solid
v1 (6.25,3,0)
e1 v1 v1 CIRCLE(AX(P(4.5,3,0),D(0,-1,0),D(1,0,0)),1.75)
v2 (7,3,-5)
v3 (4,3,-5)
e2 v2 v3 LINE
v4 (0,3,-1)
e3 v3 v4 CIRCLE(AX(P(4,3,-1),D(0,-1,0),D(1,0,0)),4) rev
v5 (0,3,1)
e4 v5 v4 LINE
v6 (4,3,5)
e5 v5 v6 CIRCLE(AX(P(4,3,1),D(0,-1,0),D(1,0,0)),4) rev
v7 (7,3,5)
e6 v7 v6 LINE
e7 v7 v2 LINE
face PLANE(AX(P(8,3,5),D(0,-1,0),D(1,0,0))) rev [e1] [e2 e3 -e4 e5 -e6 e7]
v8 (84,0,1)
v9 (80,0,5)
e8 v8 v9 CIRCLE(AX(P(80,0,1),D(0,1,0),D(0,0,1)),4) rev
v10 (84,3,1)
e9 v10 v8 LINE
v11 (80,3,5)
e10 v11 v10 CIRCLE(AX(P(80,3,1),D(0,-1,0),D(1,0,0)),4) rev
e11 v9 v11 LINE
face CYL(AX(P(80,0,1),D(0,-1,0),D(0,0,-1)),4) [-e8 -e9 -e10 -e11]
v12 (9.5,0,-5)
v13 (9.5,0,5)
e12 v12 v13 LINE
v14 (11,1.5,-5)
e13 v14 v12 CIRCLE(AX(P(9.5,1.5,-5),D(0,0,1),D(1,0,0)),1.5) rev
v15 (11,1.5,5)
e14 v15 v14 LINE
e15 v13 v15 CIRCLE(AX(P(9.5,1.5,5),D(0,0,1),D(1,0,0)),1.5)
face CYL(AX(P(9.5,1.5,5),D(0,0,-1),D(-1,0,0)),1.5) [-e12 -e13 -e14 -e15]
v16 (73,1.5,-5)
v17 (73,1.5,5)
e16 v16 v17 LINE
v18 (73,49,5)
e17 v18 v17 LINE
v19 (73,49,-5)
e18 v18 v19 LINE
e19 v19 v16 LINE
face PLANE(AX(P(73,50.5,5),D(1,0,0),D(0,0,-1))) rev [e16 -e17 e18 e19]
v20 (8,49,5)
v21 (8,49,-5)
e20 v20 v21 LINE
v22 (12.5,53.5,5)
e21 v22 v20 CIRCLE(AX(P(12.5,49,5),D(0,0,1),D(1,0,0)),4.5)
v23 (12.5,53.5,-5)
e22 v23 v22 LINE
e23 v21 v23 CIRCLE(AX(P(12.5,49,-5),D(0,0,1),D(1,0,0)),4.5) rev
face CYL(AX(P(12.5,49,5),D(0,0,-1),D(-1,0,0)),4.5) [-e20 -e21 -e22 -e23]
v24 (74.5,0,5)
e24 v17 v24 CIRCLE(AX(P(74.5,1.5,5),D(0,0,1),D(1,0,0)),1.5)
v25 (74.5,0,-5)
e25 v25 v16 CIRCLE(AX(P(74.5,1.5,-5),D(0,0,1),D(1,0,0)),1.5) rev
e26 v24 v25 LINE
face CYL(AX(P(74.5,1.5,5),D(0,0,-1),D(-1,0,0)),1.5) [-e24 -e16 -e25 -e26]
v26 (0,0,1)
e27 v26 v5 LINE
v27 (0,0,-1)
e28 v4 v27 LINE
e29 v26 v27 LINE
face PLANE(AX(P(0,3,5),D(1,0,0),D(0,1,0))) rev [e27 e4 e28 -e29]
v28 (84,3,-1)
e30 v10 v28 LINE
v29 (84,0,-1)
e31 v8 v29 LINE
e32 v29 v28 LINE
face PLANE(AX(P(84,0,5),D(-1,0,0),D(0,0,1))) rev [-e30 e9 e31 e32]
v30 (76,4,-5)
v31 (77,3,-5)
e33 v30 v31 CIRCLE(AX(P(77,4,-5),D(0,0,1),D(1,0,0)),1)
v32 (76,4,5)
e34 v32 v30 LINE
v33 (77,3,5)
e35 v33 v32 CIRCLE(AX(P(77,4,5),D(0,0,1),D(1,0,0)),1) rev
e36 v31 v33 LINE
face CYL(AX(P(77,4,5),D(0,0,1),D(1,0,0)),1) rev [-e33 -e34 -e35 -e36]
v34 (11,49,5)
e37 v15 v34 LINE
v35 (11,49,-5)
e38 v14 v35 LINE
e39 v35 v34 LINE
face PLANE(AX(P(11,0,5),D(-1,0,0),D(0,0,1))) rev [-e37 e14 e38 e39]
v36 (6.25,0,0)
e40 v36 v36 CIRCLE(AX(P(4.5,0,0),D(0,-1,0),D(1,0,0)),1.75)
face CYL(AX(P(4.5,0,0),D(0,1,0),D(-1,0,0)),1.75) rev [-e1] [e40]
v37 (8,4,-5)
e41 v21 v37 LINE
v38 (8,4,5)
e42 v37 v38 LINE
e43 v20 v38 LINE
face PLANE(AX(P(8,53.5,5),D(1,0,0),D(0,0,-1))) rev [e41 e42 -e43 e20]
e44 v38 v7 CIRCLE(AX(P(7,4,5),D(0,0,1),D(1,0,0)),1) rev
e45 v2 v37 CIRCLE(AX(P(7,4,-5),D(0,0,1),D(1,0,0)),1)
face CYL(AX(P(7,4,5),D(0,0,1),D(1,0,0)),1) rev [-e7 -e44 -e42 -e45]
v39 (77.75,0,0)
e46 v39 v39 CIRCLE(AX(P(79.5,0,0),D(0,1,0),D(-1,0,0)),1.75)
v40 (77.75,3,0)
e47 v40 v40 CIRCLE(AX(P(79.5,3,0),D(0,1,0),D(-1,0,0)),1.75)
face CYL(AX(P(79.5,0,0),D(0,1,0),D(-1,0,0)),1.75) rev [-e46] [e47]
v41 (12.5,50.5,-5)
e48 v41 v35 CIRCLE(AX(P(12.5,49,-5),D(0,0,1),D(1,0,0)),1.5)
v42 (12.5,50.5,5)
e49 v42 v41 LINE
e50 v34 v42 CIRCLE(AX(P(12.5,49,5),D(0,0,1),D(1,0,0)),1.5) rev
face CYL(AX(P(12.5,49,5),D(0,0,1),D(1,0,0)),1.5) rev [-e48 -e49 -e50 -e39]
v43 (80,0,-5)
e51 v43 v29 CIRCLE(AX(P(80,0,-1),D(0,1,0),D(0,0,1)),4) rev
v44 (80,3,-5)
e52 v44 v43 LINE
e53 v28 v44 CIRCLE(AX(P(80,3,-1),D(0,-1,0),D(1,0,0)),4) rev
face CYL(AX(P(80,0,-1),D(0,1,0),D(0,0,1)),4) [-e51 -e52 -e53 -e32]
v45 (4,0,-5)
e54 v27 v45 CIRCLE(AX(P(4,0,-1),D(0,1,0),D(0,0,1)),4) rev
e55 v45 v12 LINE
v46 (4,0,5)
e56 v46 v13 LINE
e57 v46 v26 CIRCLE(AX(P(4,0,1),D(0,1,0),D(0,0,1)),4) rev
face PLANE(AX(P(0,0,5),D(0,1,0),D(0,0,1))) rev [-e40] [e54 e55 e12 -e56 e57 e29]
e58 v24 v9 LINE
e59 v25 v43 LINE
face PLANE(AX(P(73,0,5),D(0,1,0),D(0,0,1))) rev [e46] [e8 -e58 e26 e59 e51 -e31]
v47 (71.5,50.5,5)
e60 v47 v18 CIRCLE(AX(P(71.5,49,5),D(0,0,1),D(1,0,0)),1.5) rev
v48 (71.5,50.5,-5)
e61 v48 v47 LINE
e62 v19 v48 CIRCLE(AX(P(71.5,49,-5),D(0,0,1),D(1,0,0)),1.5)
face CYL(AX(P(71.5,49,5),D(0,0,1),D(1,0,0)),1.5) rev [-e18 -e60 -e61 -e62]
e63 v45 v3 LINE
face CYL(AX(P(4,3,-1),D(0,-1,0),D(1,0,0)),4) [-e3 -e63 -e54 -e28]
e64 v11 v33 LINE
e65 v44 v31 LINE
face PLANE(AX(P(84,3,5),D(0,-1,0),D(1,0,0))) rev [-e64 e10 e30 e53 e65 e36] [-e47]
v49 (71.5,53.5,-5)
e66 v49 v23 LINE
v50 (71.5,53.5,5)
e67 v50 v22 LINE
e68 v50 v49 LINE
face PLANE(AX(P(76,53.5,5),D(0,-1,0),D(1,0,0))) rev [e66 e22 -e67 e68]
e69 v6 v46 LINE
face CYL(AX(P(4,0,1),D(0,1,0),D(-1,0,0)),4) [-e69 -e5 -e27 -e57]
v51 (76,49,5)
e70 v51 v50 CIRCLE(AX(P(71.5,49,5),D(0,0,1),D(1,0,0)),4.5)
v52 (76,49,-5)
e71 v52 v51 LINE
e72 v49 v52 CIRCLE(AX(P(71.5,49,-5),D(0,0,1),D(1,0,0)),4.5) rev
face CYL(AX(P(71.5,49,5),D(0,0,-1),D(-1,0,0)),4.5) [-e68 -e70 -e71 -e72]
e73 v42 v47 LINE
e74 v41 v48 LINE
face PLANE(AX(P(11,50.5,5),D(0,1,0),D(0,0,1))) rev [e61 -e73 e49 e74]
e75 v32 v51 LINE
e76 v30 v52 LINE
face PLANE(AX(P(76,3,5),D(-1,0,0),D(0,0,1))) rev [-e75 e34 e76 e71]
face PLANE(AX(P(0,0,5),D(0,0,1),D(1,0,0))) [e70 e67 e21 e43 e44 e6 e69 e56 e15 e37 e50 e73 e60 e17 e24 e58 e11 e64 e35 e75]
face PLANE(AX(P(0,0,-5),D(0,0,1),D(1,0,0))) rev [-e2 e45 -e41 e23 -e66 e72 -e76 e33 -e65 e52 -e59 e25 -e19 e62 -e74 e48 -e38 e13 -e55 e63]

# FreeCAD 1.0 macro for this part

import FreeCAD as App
import Part
import Sketcher

V = App.Vector
Q = App.Units.Quantity


def edges_at(feature, points):
    """Names of the edges that pass closest to the given points."""
    edges = feature.Shape.Edges
    near = lambda p: min(range(len(edges)), key=lambda i: edges[i].distToShape(Part.Vertex(*p))[0])
    return sorted({f"Edge{near(p) + 1}" for p in points})

doc = App.newDocument("Part")
body = doc.addObject("PartDesign::Body", "Body")

# Sketch on XY plane
sketch1 = doc.addObject("Sketcher::SketchObject", "Sketch")
body.addObject(sketch1)
sketch1.AttachmentSupport = (doc.XY_Plane, [""])
sketch1.MapMode = "FlatFace"
sketch1.addGeometry(Part.LineSegment(V(0, 0, 0), V(11, 0, 0)), False)
sketch1.addGeometry(Part.LineSegment(V(11, 0, 0), V(11, 50.5, 0)), False)
sketch1.addGeometry(Part.LineSegment(V(11, 50.5, 0), V(73, 50.5, 0)), False)
sketch1.addGeometry(Part.LineSegment(V(73, 50.5, 0), V(73, 0, 0)), False)
sketch1.addGeometry(Part.LineSegment(V(73, 0, 0), V(84, 0, 0)), False)
sketch1.addGeometry(Part.LineSegment(V(84, 0, 0), V(84, 3, 0)), False)
sketch1.addGeometry(Part.LineSegment(V(84, 3, 0), V(76, 3, 0)), False)
sketch1.addGeometry(Part.LineSegment(V(76, 3, 0), V(76, 53.5, 0)), False)
sketch1.addGeometry(Part.LineSegment(V(76, 53.5, 0), V(8, 53.5, 0)), False)
sketch1.addGeometry(Part.LineSegment(V(8, 53.5, 0), V(8, 3, 0)), False)
sketch1.addGeometry(Part.LineSegment(V(8, 3, 0), V(0, 3, 0)), False)
sketch1.addGeometry(Part.LineSegment(V(0, 3, 0), V(0, 0, 0)), False)
sketch1.addConstraint(Sketcher.Constraint("Coincident", 0, 2, 1, 1))
sketch1.addConstraint(Sketcher.Constraint("Coincident", 1, 2, 2, 1))
sketch1.addConstraint(Sketcher.Constraint("Coincident", 2, 2, 3, 1))
sketch1.addConstraint(Sketcher.Constraint("Coincident", 3, 2, 4, 1))
sketch1.addConstraint(Sketcher.Constraint("Coincident", 4, 2, 5, 1))
sketch1.addConstraint(Sketcher.Constraint("Coincident", 5, 2, 6, 1))
sketch1.addConstraint(Sketcher.Constraint("Coincident", 6, 2, 7, 1))
sketch1.addConstraint(Sketcher.Constraint("Coincident", 7, 2, 8, 1))
sketch1.addConstraint(Sketcher.Constraint("Coincident", 8, 2, 9, 1))
sketch1.addConstraint(Sketcher.Constraint("Coincident", 9, 2, 10, 1))
sketch1.addConstraint(Sketcher.Constraint("Coincident", 10, 2, 11, 1))
sketch1.addConstraint(Sketcher.Constraint("Coincident", 11, 2, 0, 1))
sketch1.addConstraint(Sketcher.Constraint("Horizontal", 0))
sketch1.addConstraint(Sketcher.Constraint("Vertical", 1))
sketch1.addConstraint(Sketcher.Constraint("Horizontal", 2))
sketch1.addConstraint(Sketcher.Constraint("Vertical", 3))
sketch1.addConstraint(Sketcher.Constraint("Horizontal", 4))
sketch1.addConstraint(Sketcher.Constraint("Vertical", 5))
sketch1.addConstraint(Sketcher.Constraint("Horizontal", 6))
sketch1.addConstraint(Sketcher.Constraint("Vertical", 7))
sketch1.addConstraint(Sketcher.Constraint("Horizontal", 8))
sketch1.addConstraint(Sketcher.Constraint("Vertical", 9))
sketch1.addConstraint(Sketcher.Constraint("Horizontal", 10))
sketch1.addConstraint(Sketcher.Constraint("Vertical", 11))
sketch1.addConstraint(Sketcher.Constraint("Coincident", 11, 2, -1, 1))
sketch1.addConstraint(Sketcher.Constraint("PointOnObject", 3, 2, -1))
sketch1.addConstraint(Sketcher.Constraint("Horizontal", 6, 2, 9, 2))
sketch1.addConstraint(Sketcher.Constraint("Equal", 0, 4))
sketch1.addConstraint(Sketcher.Constraint("Equal", 6, 10))
sketch1.addConstraint(Sketcher.Constraint("Equal", 3, 7))
sketch1.addConstraint(Sketcher.Constraint("DistanceX", 0, 1, 0, 2, Q("11 mm")))
sketch1.addConstraint(Sketcher.Constraint("DistanceX", 2, 1, 2, 2, Q("62 mm")))
sketch1.addConstraint(Sketcher.Constraint("DistanceX", 6, 2, 6, 1, Q("8 mm")))
sketch1.addConstraint(Sketcher.Constraint("DistanceY", 5, 1, 5, 2, Q("3 mm")))
sketch1.addConstraint(Sketcher.Constraint("DistanceY", 1, 1, 1, 2, Q("50.5 mm")))
pad1 = doc.addObject("PartDesign::Pad", "Pad")
body.addObject(pad1)
pad1.Profile = sketch1
pad1.Length = 10
pad1.Midplane = True
doc.recompute()

fillet = doc.addObject("PartDesign::Fillet", "Fillet")
body.addObject(fillet)
fillet.Base = (pad1, edges_at(pad1, [
    (84, 1.5, -5),
    (0, 1.5, -5),
    (84, 1.5, 5),
    (0, 1.5, 5),
]))
fillet.Radius = 4

# Sketch on XZ plane
sketch2 = doc.addObject("Sketcher::SketchObject", "Sketch001")
body.addObject(sketch2)
sketch2.AttachmentSupport = (doc.XZ_Plane, [""])
sketch2.MapMode = "FlatFace"
sketch2.AttachmentOffset = App.Placement(V(0, 0, -3), App.Rotation())
sketch2.addGeometry(Part.Circle(V(79.5, 0, 0), V(0, 0, 1), 1.75), False)
sketch2.addConstraint(Sketcher.Constraint("PointOnObject", 0, 3, -1))
sketch2.addConstraint(Sketcher.Constraint("Diameter", 0, Q("3.5 mm")))
sketch2.addConstraint(Sketcher.Constraint("DistanceX", -1, 1, 0, 3, Q("79.5 mm")))
pocket1 = doc.addObject("PartDesign::Pocket", "Pocket")
body.addObject(pocket1)
pocket1.Profile = sketch2
pocket1.Type = "ThroughAll"
pocket1.Reversed = True
doc.recompute()

datumplane = doc.addObject("PartDesign::Plane", "DatumPlane")
body.addObject(datumplane)
datumplane.AttachmentSupport = (doc.YZ_Plane, [""])
datumplane.MapMode = "FlatFace"
datumplane.AttachmentOffset = App.Placement(V(0, 0, 42), App.Rotation())
mirrored = doc.addObject("PartDesign::Mirrored", "Mirrored")
body.addObject(mirrored)
mirrored.Originals = [pocket1]
mirrored.MirrorPlane = (datumplane, [""])
body.Tip = mirrored
doc.recompute()

fillet2 = doc.addObject("PartDesign::Fillet", "Fillet001")
body.addObject(fillet2)
fillet2.Base = (mirrored, edges_at(mirrored, [(73, 50.5, 0), (11, 50.5, 0)]))
fillet2.Radius = 1.5
doc.recompute()

fillet3 = doc.addObject("PartDesign::Fillet", "Fillet002")
body.addObject(fillet3)
fillet3.Base = (fillet2, edges_at(fillet2, [(8, 53.5, 0), (76, 53.5, 0)]))
fillet3.Radius = 4.5
doc.recompute()

fillet4 = doc.addObject("PartDesign::Fillet", "Fillet003")
body.addObject(fillet4)
fillet4.Base = (fillet3, edges_at(fillet3, [(73, 0, 0), (11, 0, 0)]))
fillet4.Radius = 1.5
doc.recompute()

fillet5 = doc.addObject("PartDesign::Fillet", "Fillet004")
body.addObject(fillet5)
fillet5.Base = (fillet4, edges_at(fillet4, [(8, 3, 0), (76, 3, 0)]))
fillet5.Radius = 1

doc.recompute()
